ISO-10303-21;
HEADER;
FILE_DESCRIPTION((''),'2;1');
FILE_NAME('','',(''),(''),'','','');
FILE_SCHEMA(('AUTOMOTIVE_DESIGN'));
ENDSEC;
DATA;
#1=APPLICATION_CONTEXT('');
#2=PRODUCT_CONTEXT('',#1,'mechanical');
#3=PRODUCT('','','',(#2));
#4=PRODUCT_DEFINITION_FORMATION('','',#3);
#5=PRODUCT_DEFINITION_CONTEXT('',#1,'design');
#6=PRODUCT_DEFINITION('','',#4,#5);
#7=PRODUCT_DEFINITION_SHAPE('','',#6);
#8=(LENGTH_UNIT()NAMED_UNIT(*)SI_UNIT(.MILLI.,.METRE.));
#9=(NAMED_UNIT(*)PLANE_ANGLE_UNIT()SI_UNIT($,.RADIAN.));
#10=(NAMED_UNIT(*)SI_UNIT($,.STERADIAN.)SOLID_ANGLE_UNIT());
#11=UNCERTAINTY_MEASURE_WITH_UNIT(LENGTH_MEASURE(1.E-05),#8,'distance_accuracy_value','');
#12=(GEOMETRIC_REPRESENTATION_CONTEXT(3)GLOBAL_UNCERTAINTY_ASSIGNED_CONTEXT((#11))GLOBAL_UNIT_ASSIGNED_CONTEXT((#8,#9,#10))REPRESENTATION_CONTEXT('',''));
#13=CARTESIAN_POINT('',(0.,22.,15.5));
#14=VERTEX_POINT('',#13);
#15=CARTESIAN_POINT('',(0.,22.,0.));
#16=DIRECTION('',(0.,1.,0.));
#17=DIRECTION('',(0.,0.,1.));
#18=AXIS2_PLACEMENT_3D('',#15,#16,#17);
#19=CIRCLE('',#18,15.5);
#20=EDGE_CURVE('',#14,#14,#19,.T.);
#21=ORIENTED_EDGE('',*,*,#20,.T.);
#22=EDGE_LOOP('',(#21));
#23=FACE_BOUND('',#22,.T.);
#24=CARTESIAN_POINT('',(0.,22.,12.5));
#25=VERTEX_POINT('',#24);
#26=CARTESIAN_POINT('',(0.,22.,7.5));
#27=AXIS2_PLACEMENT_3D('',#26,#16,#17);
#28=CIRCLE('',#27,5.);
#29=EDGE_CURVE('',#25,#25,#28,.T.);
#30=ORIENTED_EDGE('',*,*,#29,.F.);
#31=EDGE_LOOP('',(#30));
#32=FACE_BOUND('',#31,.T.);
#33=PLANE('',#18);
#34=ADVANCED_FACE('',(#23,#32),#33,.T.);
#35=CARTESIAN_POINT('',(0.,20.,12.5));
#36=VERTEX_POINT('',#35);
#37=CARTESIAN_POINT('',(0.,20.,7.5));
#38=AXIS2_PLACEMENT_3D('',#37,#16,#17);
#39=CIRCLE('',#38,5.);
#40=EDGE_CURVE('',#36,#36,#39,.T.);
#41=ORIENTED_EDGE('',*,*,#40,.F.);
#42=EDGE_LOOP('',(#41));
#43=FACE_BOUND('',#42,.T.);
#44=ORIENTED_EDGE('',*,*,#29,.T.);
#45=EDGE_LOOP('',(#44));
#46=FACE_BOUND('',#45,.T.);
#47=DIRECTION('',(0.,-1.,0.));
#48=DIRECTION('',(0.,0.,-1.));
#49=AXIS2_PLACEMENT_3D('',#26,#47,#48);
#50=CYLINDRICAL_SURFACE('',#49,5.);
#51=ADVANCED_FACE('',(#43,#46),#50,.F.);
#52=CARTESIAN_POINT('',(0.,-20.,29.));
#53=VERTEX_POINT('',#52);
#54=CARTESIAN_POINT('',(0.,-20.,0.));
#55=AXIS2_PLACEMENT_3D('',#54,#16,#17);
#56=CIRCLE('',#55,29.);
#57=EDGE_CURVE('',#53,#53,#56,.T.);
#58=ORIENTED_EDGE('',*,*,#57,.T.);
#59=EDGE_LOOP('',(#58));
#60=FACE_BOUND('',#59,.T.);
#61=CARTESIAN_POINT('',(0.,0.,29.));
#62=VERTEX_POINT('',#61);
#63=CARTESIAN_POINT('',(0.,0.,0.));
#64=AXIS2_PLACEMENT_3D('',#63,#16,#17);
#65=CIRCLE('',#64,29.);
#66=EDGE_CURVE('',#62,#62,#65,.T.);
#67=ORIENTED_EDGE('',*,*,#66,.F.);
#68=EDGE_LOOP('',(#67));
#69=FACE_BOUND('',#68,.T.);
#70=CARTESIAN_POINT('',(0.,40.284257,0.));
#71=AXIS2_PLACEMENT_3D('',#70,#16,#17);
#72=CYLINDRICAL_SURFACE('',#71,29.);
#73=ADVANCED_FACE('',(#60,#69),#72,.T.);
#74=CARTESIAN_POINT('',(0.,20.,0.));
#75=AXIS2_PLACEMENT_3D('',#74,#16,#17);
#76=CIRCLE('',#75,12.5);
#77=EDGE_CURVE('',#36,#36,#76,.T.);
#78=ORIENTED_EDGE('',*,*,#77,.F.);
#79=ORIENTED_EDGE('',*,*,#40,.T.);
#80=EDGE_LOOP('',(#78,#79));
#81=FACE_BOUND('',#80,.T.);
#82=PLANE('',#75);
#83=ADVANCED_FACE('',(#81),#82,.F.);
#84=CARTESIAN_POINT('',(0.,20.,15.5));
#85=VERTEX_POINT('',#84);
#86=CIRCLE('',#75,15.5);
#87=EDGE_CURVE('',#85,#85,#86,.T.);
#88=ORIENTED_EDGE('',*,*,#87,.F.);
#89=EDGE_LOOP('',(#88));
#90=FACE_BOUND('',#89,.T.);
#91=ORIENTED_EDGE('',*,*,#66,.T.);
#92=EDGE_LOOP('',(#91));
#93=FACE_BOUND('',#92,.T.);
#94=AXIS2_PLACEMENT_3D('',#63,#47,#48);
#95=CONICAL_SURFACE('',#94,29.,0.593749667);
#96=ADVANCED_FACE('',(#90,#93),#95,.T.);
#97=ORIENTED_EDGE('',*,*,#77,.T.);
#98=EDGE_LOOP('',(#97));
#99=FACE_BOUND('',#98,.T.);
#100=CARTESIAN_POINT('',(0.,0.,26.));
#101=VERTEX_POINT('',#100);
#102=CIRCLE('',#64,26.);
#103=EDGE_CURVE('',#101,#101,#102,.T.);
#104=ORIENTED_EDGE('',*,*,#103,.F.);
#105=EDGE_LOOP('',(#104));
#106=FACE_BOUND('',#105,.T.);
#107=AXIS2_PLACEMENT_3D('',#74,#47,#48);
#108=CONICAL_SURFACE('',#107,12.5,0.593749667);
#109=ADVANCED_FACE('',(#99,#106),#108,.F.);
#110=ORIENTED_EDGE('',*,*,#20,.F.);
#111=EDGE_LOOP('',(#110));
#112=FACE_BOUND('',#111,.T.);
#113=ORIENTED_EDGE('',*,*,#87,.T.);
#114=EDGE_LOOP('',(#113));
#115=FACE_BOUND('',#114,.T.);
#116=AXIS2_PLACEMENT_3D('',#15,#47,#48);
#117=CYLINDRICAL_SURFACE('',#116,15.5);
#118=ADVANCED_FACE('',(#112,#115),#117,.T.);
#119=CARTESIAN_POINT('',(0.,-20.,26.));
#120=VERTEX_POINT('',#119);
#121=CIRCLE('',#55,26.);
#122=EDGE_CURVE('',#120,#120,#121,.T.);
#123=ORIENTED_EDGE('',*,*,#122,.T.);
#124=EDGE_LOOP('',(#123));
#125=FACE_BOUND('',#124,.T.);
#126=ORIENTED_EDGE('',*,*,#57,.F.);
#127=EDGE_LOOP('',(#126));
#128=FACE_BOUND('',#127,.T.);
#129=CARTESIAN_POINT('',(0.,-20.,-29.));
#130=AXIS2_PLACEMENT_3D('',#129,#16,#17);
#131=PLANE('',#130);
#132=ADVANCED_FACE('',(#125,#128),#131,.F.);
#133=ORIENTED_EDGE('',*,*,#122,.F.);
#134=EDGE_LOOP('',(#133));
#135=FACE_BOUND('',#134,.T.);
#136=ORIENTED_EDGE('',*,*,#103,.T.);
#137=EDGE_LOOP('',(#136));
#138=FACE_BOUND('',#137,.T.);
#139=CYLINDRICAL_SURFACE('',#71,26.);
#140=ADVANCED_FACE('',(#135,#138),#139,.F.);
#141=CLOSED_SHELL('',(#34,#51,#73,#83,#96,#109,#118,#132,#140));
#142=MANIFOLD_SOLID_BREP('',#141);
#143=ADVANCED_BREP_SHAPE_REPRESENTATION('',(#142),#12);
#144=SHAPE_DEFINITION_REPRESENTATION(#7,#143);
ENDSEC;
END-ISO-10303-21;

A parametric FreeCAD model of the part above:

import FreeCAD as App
import Part
import Sketcher
Q = App.Units.Quantity

doc = App.newDocument("Part")
body = doc.addObject("PartDesign::Body", "Body")

sketch1 = body.newObject("Sketcher::SketchObject", "Sketch")
sketch1.AttachmentSupport = (doc.getObject("YZ_Plane"), [""])
sketch1.MapMode = "FlatFace"
sketch1.addGeometry(Part.LineSegment(App.Vector(20, -15.5, 0), App.Vector(20, -12.5, 0)), False)
sketch1.addGeometry(Part.LineSegment(App.Vector(20, -12.5, 0), App.Vector(0, -26, 0)), False)
sketch1.addGeometry(Part.LineSegment(App.Vector(0, -26, 0), App.Vector(-20, -26, 0)), False)
sketch1.addGeometry(Part.LineSegment(App.Vector(-20, -26, 0), App.Vector(-20, -29, 0)), False)
sketch1.addGeometry(Part.LineSegment(App.Vector(-20, -29, 0), App.Vector(0, -29, 0)), False)
sketch1.addGeometry(Part.LineSegment(App.Vector(0, -29, 0), App.Vector(20, -15.5, 0)), False)
sketch1.addConstraint(Sketcher.Constraint("Coincident", 0, 2, 1, 1))
sketch1.addConstraint(Sketcher.Constraint("Coincident", 1, 2, 2, 1))
sketch1.addConstraint(Sketcher.Constraint("Coincident", 2, 2, 3, 1))
sketch1.addConstraint(Sketcher.Constraint("Coincident", 3, 2, 4, 1))
sketch1.addConstraint(Sketcher.Constraint("Coincident", 4, 2, 5, 1))
sketch1.addConstraint(Sketcher.Constraint("Coincident", 5, 2, 0, 1))
sketch1.addConstraint(Sketcher.Constraint("Vertical", 0))
sketch1.addConstraint(Sketcher.Constraint("Horizontal", 2))
sketch1.addConstraint(Sketcher.Constraint("Vertical", 3))
sketch1.addConstraint(Sketcher.Constraint("Horizontal", 4))
sketch1.addConstraint(Sketcher.Constraint("PointOnObject", 1, 2, -2))
sketch1.addConstraint(Sketcher.Constraint("PointOnObject", 4, 2, -2))
sketch1.addConstraint(Sketcher.Constraint("Parallel", 1, 5))
sketch1.addConstraint(Sketcher.Constraint("DistanceX", 2, 2, 2, 1, Q("20 mm")))
sketch1.addConstraint(Sketcher.Constraint("DistanceY", 0, 1, 0, 2, Q("3 mm")))
sketch1.addConstraint(Sketcher.Constraint("DistanceX", -1, 1, 0, 2, Q("20 mm")))
sketch1.addConstraint(Sketcher.Constraint("DistanceY", 1, 2, -1, 1, Q("26 mm")))
sketch1.addConstraint(Sketcher.Constraint("DistanceY", 0, 2, -1, 1, Q("12.5 mm")))
revolution = body.newObject("PartDesign::Revolution", "Revolution")
revolution.Profile = sketch1
revolution.ReferenceAxis = (sketch1, ["H_Axis"])
revolution.Angle = 360

sketch2 = body.newObject("Sketcher::SketchObject", "Sketch001")
sketch2.AttachmentSupport = (doc.getObject("XZ_Plane"), [""])
sketch2.MapMode = "FlatFace"
sketch2.AttachmentOffset = App.Placement(App.Vector(0, 0, -20), App.Rotation())
sketch2.addGeometry(Part.Circle(App.Vector(0, 0, 0), App.Vector(0, 0, 1), 16), False)
sketch2.addGeometry(Part.Circle(App.Vector(0, 8, 0), App.Vector(0, 0, 1), 5), False)
sketch2.addConstraint(Sketcher.Constraint("Coincident", 0, 3, -1, 1))
sketch2.addConstraint(Sketcher.Constraint("PointOnObject", 1, 3, -2))
sketch2.addConstraint(Sketcher.Constraint("Diameter", 0, Q("31 mm")))
sketch2.addConstraint(Sketcher.Constraint("Diameter", 1, Q("10 mm")))
sketch2.addConstraint(Sketcher.Constraint("DistanceY", -1, 1, 1, 3, Q("7.5 mm")))
pad1 = body.newObject("PartDesign::Pad", "Pad")
pad1.Profile = sketch2
pad1.Length = 2
pad1.Reversed = True

doc.recompute()
